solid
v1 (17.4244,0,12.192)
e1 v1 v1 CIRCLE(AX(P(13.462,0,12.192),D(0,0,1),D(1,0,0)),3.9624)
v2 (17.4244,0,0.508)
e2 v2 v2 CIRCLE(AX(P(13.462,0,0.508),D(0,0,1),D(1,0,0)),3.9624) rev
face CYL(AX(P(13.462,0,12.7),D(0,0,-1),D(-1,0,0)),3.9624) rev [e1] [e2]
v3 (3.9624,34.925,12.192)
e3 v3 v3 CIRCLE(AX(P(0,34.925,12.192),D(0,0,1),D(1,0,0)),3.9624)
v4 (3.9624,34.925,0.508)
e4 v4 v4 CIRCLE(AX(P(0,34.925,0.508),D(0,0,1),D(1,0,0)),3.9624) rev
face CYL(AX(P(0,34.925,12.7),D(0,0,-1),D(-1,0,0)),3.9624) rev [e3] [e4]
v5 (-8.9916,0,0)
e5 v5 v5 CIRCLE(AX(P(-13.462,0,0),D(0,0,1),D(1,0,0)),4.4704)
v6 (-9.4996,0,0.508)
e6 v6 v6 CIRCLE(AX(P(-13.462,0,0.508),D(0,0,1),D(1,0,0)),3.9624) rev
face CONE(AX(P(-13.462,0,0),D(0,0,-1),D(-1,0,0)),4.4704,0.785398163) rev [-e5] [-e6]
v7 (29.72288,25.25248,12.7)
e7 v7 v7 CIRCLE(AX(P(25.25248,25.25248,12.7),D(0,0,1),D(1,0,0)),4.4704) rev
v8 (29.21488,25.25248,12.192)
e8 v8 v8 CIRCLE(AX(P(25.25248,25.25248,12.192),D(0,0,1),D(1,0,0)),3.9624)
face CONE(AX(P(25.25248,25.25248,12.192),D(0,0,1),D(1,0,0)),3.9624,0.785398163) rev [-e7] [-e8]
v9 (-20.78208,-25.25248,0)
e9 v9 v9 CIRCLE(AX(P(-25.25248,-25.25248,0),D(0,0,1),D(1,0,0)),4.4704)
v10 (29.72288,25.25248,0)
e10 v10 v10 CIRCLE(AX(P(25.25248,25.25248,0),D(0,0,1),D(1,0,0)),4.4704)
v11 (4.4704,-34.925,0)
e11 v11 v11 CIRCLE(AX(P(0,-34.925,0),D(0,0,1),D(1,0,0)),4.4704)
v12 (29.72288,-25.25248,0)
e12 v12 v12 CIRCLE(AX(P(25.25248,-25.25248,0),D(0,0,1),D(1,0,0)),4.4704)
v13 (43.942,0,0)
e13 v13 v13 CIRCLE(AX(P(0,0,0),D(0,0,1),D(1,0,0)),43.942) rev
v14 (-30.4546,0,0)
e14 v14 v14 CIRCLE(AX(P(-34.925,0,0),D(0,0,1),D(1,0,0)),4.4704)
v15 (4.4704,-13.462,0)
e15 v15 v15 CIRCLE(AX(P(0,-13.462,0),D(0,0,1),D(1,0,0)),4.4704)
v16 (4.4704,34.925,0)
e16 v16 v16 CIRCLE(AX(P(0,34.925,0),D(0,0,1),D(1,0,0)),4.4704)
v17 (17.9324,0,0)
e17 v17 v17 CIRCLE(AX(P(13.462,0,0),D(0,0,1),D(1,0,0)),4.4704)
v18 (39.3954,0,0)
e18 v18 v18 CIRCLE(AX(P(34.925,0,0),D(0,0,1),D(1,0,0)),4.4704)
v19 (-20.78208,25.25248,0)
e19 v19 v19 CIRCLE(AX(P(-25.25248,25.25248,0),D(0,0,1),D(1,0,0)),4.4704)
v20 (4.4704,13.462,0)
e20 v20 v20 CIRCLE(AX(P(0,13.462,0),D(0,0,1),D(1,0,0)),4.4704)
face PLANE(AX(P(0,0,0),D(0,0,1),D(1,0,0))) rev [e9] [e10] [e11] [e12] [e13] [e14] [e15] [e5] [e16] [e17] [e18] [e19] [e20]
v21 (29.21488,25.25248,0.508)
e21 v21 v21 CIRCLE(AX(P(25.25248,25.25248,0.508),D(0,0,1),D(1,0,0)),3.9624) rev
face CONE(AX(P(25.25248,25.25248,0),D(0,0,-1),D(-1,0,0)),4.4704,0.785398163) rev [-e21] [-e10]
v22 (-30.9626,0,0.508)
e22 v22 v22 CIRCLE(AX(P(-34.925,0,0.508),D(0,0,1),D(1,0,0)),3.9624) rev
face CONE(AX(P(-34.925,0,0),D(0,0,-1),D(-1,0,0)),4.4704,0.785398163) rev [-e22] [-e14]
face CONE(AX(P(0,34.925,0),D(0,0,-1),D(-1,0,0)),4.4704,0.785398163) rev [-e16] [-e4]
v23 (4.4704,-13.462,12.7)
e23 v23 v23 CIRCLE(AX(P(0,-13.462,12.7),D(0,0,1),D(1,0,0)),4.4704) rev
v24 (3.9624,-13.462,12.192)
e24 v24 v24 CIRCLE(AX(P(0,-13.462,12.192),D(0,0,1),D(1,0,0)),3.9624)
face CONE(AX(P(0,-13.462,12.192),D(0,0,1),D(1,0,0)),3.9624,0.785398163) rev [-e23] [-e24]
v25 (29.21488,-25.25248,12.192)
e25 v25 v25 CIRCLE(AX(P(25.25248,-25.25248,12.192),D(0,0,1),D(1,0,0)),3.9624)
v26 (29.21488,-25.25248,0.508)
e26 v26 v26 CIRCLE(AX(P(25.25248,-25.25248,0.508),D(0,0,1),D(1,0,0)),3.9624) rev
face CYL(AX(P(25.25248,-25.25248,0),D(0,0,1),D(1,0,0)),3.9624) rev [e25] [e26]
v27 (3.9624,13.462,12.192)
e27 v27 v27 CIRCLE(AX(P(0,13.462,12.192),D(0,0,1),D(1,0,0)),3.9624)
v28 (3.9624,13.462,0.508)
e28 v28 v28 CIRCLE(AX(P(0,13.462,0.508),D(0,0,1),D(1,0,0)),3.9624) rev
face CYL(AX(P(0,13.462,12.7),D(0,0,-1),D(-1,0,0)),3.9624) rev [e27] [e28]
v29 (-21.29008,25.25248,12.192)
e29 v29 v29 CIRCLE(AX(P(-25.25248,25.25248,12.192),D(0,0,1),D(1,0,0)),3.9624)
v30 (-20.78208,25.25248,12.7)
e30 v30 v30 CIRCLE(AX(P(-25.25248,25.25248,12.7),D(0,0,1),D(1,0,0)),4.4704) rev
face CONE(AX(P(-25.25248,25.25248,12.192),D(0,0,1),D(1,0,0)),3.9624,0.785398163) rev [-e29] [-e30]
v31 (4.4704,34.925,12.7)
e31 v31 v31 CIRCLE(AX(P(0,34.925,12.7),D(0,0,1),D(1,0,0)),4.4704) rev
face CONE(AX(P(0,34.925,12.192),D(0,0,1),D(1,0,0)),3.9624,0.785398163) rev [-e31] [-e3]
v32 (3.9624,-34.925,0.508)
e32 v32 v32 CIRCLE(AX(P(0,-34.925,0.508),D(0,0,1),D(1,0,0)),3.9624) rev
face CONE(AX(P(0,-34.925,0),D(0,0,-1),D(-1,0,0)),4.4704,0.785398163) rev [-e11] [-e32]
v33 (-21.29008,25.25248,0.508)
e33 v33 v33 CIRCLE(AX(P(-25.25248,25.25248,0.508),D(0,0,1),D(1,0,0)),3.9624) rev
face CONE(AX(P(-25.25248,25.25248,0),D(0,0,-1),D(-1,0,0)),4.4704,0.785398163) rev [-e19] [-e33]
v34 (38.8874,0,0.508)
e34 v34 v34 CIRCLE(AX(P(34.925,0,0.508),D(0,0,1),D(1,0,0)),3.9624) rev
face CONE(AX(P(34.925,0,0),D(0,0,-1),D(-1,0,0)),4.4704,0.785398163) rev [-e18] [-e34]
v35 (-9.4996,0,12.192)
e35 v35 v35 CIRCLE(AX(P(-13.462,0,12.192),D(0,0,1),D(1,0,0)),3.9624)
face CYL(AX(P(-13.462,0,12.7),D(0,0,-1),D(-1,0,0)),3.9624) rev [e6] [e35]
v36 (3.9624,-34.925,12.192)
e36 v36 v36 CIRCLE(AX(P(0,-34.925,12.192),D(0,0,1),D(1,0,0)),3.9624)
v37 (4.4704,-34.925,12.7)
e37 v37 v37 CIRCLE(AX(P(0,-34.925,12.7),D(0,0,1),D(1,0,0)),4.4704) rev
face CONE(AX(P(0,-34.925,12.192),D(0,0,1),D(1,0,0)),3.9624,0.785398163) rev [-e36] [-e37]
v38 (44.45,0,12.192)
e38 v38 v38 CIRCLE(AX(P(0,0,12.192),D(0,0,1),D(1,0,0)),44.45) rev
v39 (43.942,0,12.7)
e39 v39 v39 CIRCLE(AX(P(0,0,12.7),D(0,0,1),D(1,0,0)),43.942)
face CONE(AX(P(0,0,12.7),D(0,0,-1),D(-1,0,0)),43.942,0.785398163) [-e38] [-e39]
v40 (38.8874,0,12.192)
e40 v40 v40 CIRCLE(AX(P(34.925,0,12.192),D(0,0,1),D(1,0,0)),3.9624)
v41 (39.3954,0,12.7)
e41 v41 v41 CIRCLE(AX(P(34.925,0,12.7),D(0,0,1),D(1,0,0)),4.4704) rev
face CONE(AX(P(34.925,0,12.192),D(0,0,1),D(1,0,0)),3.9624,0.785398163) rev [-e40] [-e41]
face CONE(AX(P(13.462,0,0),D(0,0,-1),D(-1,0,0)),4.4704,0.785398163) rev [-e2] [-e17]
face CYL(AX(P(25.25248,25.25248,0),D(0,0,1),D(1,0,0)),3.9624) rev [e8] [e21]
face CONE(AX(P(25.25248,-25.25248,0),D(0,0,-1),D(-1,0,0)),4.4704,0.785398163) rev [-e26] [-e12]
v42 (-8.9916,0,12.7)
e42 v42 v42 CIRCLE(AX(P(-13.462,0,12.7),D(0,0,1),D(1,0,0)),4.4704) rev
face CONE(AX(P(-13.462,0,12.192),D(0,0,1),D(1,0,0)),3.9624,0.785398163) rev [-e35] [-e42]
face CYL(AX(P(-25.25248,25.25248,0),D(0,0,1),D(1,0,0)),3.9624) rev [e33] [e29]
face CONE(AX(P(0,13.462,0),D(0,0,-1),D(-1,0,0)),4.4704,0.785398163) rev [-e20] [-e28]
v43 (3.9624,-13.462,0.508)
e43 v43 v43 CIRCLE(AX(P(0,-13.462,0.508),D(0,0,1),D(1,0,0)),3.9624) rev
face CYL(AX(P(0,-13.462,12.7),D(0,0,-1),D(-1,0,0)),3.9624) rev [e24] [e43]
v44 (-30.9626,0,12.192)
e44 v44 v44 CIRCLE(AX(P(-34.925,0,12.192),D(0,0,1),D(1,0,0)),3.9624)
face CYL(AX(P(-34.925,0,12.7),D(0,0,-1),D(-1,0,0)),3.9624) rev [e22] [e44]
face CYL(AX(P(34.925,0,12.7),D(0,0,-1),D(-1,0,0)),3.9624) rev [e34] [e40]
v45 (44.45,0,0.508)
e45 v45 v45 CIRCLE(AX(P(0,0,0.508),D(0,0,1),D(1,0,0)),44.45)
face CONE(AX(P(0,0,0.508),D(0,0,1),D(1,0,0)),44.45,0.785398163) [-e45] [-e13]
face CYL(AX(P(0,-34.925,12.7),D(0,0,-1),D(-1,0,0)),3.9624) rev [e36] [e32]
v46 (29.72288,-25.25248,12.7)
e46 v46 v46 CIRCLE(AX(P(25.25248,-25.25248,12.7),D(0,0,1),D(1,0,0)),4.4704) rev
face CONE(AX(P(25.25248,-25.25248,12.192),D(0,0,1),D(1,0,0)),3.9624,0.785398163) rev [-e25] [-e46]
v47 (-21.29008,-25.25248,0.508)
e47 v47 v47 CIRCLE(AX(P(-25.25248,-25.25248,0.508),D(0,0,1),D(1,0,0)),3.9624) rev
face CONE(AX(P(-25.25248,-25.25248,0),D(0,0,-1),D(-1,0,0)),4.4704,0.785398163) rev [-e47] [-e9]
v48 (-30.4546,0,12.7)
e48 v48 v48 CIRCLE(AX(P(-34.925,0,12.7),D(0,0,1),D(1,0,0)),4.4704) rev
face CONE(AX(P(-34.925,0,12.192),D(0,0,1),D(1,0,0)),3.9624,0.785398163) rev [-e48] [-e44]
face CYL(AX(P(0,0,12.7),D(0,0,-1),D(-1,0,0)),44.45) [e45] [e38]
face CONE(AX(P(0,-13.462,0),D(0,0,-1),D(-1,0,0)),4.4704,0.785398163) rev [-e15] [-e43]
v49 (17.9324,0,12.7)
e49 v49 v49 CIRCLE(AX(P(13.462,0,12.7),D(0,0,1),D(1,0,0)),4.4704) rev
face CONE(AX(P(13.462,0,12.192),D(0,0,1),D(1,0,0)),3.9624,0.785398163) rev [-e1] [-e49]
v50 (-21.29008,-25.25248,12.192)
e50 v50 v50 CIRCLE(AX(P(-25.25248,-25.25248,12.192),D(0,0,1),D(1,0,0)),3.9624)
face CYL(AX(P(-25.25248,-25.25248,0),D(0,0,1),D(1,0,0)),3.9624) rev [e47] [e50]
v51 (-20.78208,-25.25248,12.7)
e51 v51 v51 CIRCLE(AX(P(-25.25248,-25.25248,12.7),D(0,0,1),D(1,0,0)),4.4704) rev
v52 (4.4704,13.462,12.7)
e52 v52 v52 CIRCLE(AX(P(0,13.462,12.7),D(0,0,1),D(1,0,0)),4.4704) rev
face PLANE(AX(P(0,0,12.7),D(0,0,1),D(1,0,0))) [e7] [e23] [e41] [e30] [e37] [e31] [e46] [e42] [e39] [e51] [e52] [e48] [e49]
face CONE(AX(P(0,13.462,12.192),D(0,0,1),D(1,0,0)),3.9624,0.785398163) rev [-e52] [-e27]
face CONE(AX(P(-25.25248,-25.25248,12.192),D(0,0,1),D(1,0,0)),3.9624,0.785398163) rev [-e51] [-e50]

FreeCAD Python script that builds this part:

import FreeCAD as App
import Part
import Sketcher

V = App.Vector
Q = App.Units.Quantity


def edges_at(feature, points):
    """Names of the edges that pass closest to the given points."""
    edges = feature.Shape.Edges
    near = lambda p: min(range(len(edges)), key=lambda i: edges[i].distToShape(Part.Vertex(*p))[0])
    return sorted({f"Edge{near(p) + 1}" for p in points})

doc = App.newDocument("Part")
body = doc.addObject("PartDesign::Body", "Body")

# Sketch on XY plane
sketch1 = body.newObject("Sketcher::SketchObject", "Sketch")
sketch1.AttachmentSupport = (doc.getObject("XY_Plane"), [""])
sketch1.MapMode = "FlatFace"
sketch1.addGeometry(Part.Circle(V(0, 0, 0), V(0, 0, 1), 44.45), False)
sketch1.addConstraint([
    Sketcher.Constraint("Coincident", 0, 3, -1, 1),
    Sketcher.Constraint("Diameter", 0, Q("3.5 in")),
])
pad1 = body.newObject("PartDesign::Pad", "Pad")
pad1.Profile = sketch1
pad1.Length = Q("0.5 in")

# Sketch on XY plane
sketch2 = body.newObject("Sketcher::SketchObject", "Sketch001")
sketch2.AttachmentSupport = (doc.getObject("XY_Plane"), [""])
sketch2.MapMode = "FlatFace"
sketch2.addGeometry([
    Part.Circle(V(0, 13.462, 0), V(0, 0, 1), 3.9624),
    Part.Circle(V(13.462, 0, 0), V(0, 0, 1), 3.9624),
    Part.Circle(V(0, -13.462, 0), V(0, 0, 1), 3.9624),
    Part.Circle(V(-13.462, 0, 0), V(0, 0, 1), 3.9624),
], False)
sketch2.addConstraint([
    Sketcher.Constraint("Equal", 0, 1),
    Sketcher.Constraint("Equal", 1, 2),
    Sketcher.Constraint("Equal", 2, 3),
    Sketcher.Constraint("Symmetric", 0, 3, 2, 3, -1, 1),
    Sketcher.Constraint("Symmetric", 1, 3, 3, 3, -1, 1),
    Sketcher.Constraint("PointOnObject", 0, 3, -2),
    Sketcher.Constraint("PointOnObject", 1, 3, -1),
    Sketcher.Constraint("Diameter", 0, Q("0.312 in")),
    Sketcher.Constraint("DistanceY", -1, 1, 0, 3, Q("0.53 in")),
    Sketcher.Constraint("DistanceX", -1, 1, 1, 3, Q("0.53 in")),
])
pocket1 = body.newObject("PartDesign::Pocket", "Pocket")
pocket1.Profile = sketch2
pocket1.Type = "ThroughAll"
pocket1.Reversed = True

# Sketch on XY plane
sketch3 = body.newObject("Sketcher::SketchObject", "Sketch002")
sketch3.AttachmentSupport = (doc.getObject("XY_Plane"), [""])
sketch3.MapMode = "FlatFace"
sketch3.addGeometry(Part.Circle(V(0, -34.925, 0), V(0, 0, 1), 3.9624), False)
sketch3.addConstraint([
    Sketcher.Constraint("PointOnObject", 0, 3, -2),
    Sketcher.Constraint("Diameter", 0, Q("0.312 in")),
    Sketcher.Constraint("DistanceY", 0, 3, -1, 1, Q("1.375 in")),
])
pocket2 = body.newObject("PartDesign::Pocket", "Pocket001")
pocket2.Profile = sketch3
pocket2.Type = "ThroughAll"
pocket2.Reversed = True
doc.recompute()

polarpattern = body.newObject("PartDesign::PolarPattern", "PolarPattern")
polarpattern.Originals = [pocket2]
polarpattern.Axis = (doc.getObject("Z_Axis"), [""])
polarpattern.Angle = 360
polarpattern.Occurrences = 4
body.Tip = polarpattern
doc.recompute()

chamfer = body.newObject("PartDesign::Chamfer", "Chamfer")
chamfer.Base = (polarpattern, edges_at(polarpattern, [
    (-3.962, 13.462, 0),
    (-3.962, 13.462, 12.7),
    (9.5, 0, 12.7),
    (-3.962, -13.462, 12.7),
    (-3.962, -34.925, 0),
    (-3.962, -34.925, 12.7),
    (34.925, -3.962, 0),
    (34.925, -3.962, 12.7),
    (3.962, 34.925, 0),
    (3.962, 34.925, 12.7),
    (-34.925, 3.962, 0),
    (-34.925, 3.962, 12.7),
    (-17.424, 0, 12.7),
]))
chamfer.Size = Q("0.02 in")

# Sketch on XY plane
sketch4 = body.newObject("Sketcher::SketchObject", "Sketch003")
sketch4.AttachmentSupport = (doc.getObject("XY_Plane"), [""])
sketch4.MapMode = "FlatFace"
sketch4.AttachmentOffset = App.Placement(V(0, 0, 0.5 * 25.4), App.Rotation())
sketch4.addGeometry(Part.Circle(V(-25.25248, -25.25248, 0), V(0, 0, 1), 3.9624), False)
sketch4.addConstraint([
    Sketcher.Constraint("Diameter", 0, Q("0.312 in")),
    Sketcher.Constraint("DistanceX", 0, 3, -1, 1, Q("25.25248 mm")),
    Sketcher.Constraint("DistanceY", 0, 3, -1, 1, Q("25.25248 mm")),
])
pocket3 = body.newObject("PartDesign::Pocket", "Pocket002")
pocket3.Profile = sketch4
pocket3.Type = "ThroughAll"
doc.recompute()

polarpattern2 = body.newObject("PartDesign::PolarPattern", "PolarPattern001")
polarpattern2.Originals = [pocket3]
polarpattern2.Axis = (doc.getObject("Z_Axis"), [""])
polarpattern2.Angle = 360
polarpattern2.Occurrences = 4
body.Tip = polarpattern2
doc.recompute()

chamfer2 = body.newObject("PartDesign::Chamfer", "Chamfer001")
chamfer2.Base = (polarpattern2, edges_at(polarpattern2, [
    (9.5, 0, 0),
    (-3.962, -13.462, 0),
    (-17.424, 0, 0),
    (-29.215, -25.252, 0),
    (-29.215, -25.252, 12.7),
    (25.252, -29.215, 0),
    (25.252, -29.215, 12.7),
    (29.215, 25.252, 0),
    (29.215, 25.252, 12.7),
    (-25.252, 29.215, 0),
    (-25.252, 29.215, 12.7),
]))
chamfer2.Size = Q("0.02 in")
doc.recompute()

chamfer3 = body.newObject("PartDesign::Chamfer", "Chamfer002")
chamfer3.Base = (chamfer2, edges_at(chamfer2, [(-44.45, 0, 0), (-44.45, 0, 12.7)]))
chamfer3.Size = Q("0.02 in")

doc.recompute()
